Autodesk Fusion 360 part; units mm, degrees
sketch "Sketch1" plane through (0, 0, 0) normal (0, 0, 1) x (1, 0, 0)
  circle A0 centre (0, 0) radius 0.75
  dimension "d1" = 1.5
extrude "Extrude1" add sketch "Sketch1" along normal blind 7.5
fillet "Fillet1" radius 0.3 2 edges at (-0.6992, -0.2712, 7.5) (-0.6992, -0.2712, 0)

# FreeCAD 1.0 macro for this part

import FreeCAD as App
import Part
import Sketcher
Q = App.Units.Quantity


def edges_at(feature, points):
    """Names of the edges that pass closest to the given points."""
    edges = feature.Shape.Edges
    near = lambda p: min(range(len(edges)), key=lambda i: edges[i].distToShape(Part.Vertex(*p))[0])
    return sorted({f"Edge{near(p) + 1}" for p in points})

doc = App.newDocument("Part")
params = doc.addObject("Spreadsheet::Sheet", "Params")
for row, (alias, value) in enumerate([
    ("sketch1_diameter", "1.5 mm"),
    ("pad1_length", "7.5 mm"),
    ("fillet_radius", "0.3 mm"),
], start=1):
    params.set(f"A{row}", alias)
    params.set(f"B{row}", "=" + value)
    params.setAlias(f"B{row}", alias)

body = doc.addObject("PartDesign::Body", "Body")

# Sketch on XY plane
sketch1 = body.newObject("Sketcher::SketchObject", "Sketch")
sketch1.AttachmentSupport = (doc.getObject("XY_Plane"), [""])
sketch1.MapMode = "FlatFace"
sketch1.addGeometry(Part.Circle(App.Vector(0, 0, 0), App.Vector(0, 0, 1), 0.8), False)
sketch1.addConstraint([
    Sketcher.Constraint("Coincident", 0, 3, -1, 1),
    Sketcher.Constraint("Diameter", 0, Q("1.5 mm")),
])
sketch1.setExpression("Constraints[1]", "Params.sketch1_diameter")
pad1 = body.newObject("PartDesign::Pad", "Pad")
pad1.Profile = sketch1
pad1.setExpression("Length", "Params.pad1_length")
doc.recompute()

fillet = body.newObject("PartDesign::Fillet", "Fillet")
fillet.Base = (pad1, edges_at(pad1, [(-0.699, -0.271, 7.5), (-0.699, -0.271, 0)]))
fillet.setExpression("Radius", "Params.fillet_radius")

doc.recompute()
